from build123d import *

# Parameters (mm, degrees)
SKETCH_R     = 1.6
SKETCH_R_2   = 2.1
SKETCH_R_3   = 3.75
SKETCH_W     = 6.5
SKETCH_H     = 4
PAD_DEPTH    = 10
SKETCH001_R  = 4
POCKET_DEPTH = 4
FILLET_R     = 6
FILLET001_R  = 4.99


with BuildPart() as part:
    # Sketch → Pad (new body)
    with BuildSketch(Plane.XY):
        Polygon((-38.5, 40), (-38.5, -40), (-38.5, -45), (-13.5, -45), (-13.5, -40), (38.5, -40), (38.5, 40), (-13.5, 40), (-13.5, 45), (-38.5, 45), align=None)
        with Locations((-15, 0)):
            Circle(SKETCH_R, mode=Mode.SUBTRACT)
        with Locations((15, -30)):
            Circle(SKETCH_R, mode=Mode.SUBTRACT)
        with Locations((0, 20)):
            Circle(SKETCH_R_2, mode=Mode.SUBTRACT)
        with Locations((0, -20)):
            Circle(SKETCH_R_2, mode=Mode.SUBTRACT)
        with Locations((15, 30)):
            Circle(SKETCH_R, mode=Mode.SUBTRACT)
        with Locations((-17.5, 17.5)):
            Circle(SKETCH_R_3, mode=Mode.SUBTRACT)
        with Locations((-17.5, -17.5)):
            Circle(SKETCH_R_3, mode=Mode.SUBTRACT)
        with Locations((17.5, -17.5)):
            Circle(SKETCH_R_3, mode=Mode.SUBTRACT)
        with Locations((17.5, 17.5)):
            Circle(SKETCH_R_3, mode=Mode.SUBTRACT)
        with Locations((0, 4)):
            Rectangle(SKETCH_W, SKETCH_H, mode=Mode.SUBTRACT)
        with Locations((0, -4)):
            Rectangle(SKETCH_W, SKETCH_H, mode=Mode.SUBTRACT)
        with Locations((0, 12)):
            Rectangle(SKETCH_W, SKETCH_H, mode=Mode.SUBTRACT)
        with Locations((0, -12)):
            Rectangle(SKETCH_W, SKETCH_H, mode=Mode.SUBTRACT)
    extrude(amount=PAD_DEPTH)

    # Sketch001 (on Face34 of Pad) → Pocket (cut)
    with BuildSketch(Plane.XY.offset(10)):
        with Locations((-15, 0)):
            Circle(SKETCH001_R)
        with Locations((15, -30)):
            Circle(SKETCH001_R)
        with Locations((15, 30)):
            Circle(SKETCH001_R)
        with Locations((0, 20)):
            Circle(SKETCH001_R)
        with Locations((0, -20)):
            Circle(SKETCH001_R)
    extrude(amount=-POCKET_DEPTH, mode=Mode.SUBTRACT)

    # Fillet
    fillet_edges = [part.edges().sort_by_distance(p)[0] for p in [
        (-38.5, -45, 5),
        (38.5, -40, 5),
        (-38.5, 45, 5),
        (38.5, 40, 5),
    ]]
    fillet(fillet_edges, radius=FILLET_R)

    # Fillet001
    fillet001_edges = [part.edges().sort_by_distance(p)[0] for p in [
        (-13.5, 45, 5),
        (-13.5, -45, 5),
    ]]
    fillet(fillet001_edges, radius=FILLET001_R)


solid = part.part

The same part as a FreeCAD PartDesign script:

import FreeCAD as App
import Part
import Sketcher
Q = App.Units.Quantity


def edges_at(feature, points):
    """Names of the edges that pass closest to the given points."""
    edges = feature.Shape.Edges
    near = lambda p: min(range(len(edges)), key=lambda i: edges[i].distToShape(Part.Vertex(*p))[0])
    return sorted({f"Edge{near(p) + 1}" for p in points})

doc = App.newDocument("Part")
body = doc.addObject("PartDesign::Body", "Body")

# Sketch on XY plane
sketch1 = body.newObject("Sketcher::SketchObject", "Sketch")
sketch1.AttachmentSupport = (doc.getObject("XY_Plane"), [""])
sketch1.MapMode = "FlatFace"
sketch1.addGeometry([
    Part.LineSegment(App.Vector(-38.5, -45, 0), App.Vector(-13.5, -45, 0)),  # 0
    Part.LineSegment(App.Vector(-13.5, -45, 0), App.Vector(-13.5, -40, 0)),  # 1
    Part.LineSegment(App.Vector(-13.5, -40, 0), App.Vector(38.5, -40, 0)),  # 2
    Part.LineSegment(App.Vector(38.5, -40, 0), App.Vector(38.5, 40, 0)),  # 3
    Part.LineSegment(App.Vector(38.5, 40, 0), App.Vector(-13.5, 40, 0)),  # 4
    Part.LineSegment(App.Vector(-13.5, 40, 0), App.Vector(-13.5, 45, 0)),  # 5
    Part.LineSegment(App.Vector(-13.5, 45, 0), App.Vector(-38.5, 45, 0)),  # 6
    Part.LineSegment(App.Vector(-38.5, 45, 0), App.Vector(-38.5, -45, 0)),  # 7
    Part.Circle(App.Vector(-17.5, -17.5, 0), App.Vector(0, 0, 1), 3.8),  # 8
    Part.Circle(App.Vector(-15, 0, 0), App.Vector(0, 0, 1), 1.6),  # 9
    Part.Circle(App.Vector(0, -20, 0), App.Vector(0, 0, 1), 2.1),  # 10
    Part.Circle(App.Vector(15, -30, 0), App.Vector(0, 0, 1), 1.6),  # 11
    Part.Circle(App.Vector(17.5, -17.5, 0), App.Vector(0, 0, 1), 3.8),  # 12
    Part.LineSegment(App.Vector(3.2, -14, 0), App.Vector(-3.2, -14, 0)),  # 13
    Part.LineSegment(App.Vector(-3.2, -14, 0), App.Vector(-3.2, -10, 0)),  # 14
    Part.LineSegment(App.Vector(-3.2, -10, 0), App.Vector(3.2, -10, 0)),  # 15
    Part.LineSegment(App.Vector(3.2, -10, 0), App.Vector(3.2, -14, 0)),  # 16
    Part.LineSegment(App.Vector(3.2, -6, 0), App.Vector(-3.2, -6, 0)),  # 17
    Part.LineSegment(App.Vector(-3.2, -6, 0), App.Vector(-3.2, -2, 0)),  # 18
    Part.LineSegment(App.Vector(-3.2, -2, 0), App.Vector(3.2, -2, 0)),  # 19
    Part.LineSegment(App.Vector(3.2, -2, 0), App.Vector(3.2, -6, 0)),  # 20
    Part.Circle(App.Vector(-17.5, 17.5, 0), App.Vector(0, 0, 1), 3.8),  # 21
    Part.LineSegment(App.Vector(3.2, 2, 0), App.Vector(-3.2, 2, 0)),  # 22
    Part.LineSegment(App.Vector(-3.2, 2, 0), App.Vector(-3.2, 6, 0)),  # 23
    Part.LineSegment(App.Vector(-3.2, 6, 0), App.Vector(3.2, 6, 0)),  # 24
    Part.LineSegment(App.Vector(3.2, 6, 0), App.Vector(3.2, 2, 0)),  # 25
    Part.LineSegment(App.Vector(3.2, 10, 0), App.Vector(-3.2, 10, 0)),  # 26
    Part.LineSegment(App.Vector(-3.2, 10, 0), App.Vector(-3.2, 14, 0)),  # 27
    Part.LineSegment(App.Vector(-3.2, 14, 0), App.Vector(3.2, 14, 0)),  # 28
    Part.LineSegment(App.Vector(3.2, 14, 0), App.Vector(3.2, 10, 0)),  # 29
    Part.Circle(App.Vector(0, 20, 0), App.Vector(0, 0, 1), 2.1),  # 30
    Part.Circle(App.Vector(17.5, 17.5, 0), App.Vector(0, 0, 1), 3.8),  # 31
    Part.Circle(App.Vector(15, 30, 0), App.Vector(0, 0, 1), 1.6),  # 32
], False)
sketch1.addConstraint([
    Sketcher.Constraint("Coincident", 0, 2, 1, 1),
    Sketcher.Constraint("Coincident", 1, 2, 2, 1),
    Sketcher.Constraint("Coincident", 2, 2, 3, 1),
    Sketcher.Constraint("Coincident", 3, 2, 4, 1),
    Sketcher.Constraint("Coincident", 4, 2, 5, 1),
    Sketcher.Constraint("Coincident", 5, 2, 6, 1),
    Sketcher.Constraint("Coincident", 6, 2, 7, 1),
    Sketcher.Constraint("Coincident", 7, 2, 0, 1),
    Sketcher.Constraint("Coincident", 13, 2, 14, 1),
    Sketcher.Constraint("Coincident", 14, 2, 15, 1),
    Sketcher.Constraint("Coincident", 15, 2, 16, 1),
    Sketcher.Constraint("Coincident", 16, 2, 13, 1),
    Sketcher.Constraint("Coincident", 17, 2, 18, 1),
    Sketcher.Constraint("Coincident", 18, 2, 19, 1),
    Sketcher.Constraint("Coincident", 19, 2, 20, 1),
    Sketcher.Constraint("Coincident", 20, 2, 17, 1),
    Sketcher.Constraint("Coincident", 22, 2, 23, 1),
    Sketcher.Constraint("Coincident", 23, 2, 24, 1),
    Sketcher.Constraint("Coincident", 24, 2, 25, 1),
    Sketcher.Constraint("Coincident", 25, 2, 22, 1),
    Sketcher.Constraint("Coincident", 26, 2, 27, 1),
    Sketcher.Constraint("Coincident", 27, 2, 28, 1),
    Sketcher.Constraint("Coincident", 28, 2, 29, 1),
    Sketcher.Constraint("Coincident", 29, 2, 26, 1),
    Sketcher.Constraint("Horizontal", 0),
    Sketcher.Constraint("Vertical", 1),
    Sketcher.Constraint("Horizontal", 2),
    Sketcher.Constraint("Vertical", 3),
    Sketcher.Constraint("Horizontal", 4),
    Sketcher.Constraint("Vertical", 5),
    Sketcher.Constraint("Horizontal", 6),
    Sketcher.Constraint("Vertical", 7),
    Sketcher.Constraint("Horizontal", 13),
    Sketcher.Constraint("Vertical", 14),
    Sketcher.Constraint("Horizontal", 15),
    Sketcher.Constraint("Vertical", 16),
    Sketcher.Constraint("Horizontal", 17),
    Sketcher.Constraint("Vertical", 18),
    Sketcher.Constraint("Horizontal", 19),
    Sketcher.Constraint("Vertical", 20),
    Sketcher.Constraint("Horizontal", 22),
    Sketcher.Constraint("Vertical", 23),
    Sketcher.Constraint("Horizontal", 24),
    Sketcher.Constraint("Vertical", 25),
    Sketcher.Constraint("Horizontal", 26),
    Sketcher.Constraint("Vertical", 27),
    Sketcher.Constraint("Horizontal", 28),
    Sketcher.Constraint("Vertical", 29),
    Sketcher.Constraint("Equal", 9, 11),
    Sketcher.Constraint("Equal", 8, 12),
    Sketcher.Constraint("Equal", 12, 21),
    Sketcher.Constraint("Equal", 10, 30),
    Sketcher.Constraint("Equal", 21, 31),
    Sketcher.Constraint("Equal", 11, 32),
    Sketcher.Constraint("Symmetric", 12, 3, 21, 3, -1, 1),
    Sketcher.Constraint("Symmetric", 10, 3, 30, 3, -1, 1),
    Sketcher.Constraint("Symmetric", 8, 3, 31, 3, -1, 1),
    Sketcher.Constraint("Symmetric", 19, 2, 22, 2, -1, 1),
    Sketcher.Constraint("Symmetric", 17, 2, 24, 2, -1, 1),
    Sketcher.Constraint("Symmetric", 15, 2, 26, 2, -1, 1),
    Sketcher.Constraint("Symmetric", 13, 2, 28, 2, -1, 1),
    Sketcher.Constraint("Symmetric", 8, 3, 12, 3, -2),
    Sketcher.Constraint("Symmetric", 11, 3, 32, 3, -1),
    Sketcher.Constraint("Symmetric", 1, 2, 4, 2, -1),
    Sketcher.Constraint("PointOnObject", 9, 3, -1),
    Sketcher.Constraint("PointOnObject", 10, 3, -2),
    Sketcher.Constraint("Vertical", 14, 2, 17, 2),
    Sketcher.Constraint("Vertical", 16, 2, 19, 2),
    Sketcher.Constraint("Vertical", 18, 2, 22, 2),
    Sketcher.Constraint("Equal", 1, 5),
    Sketcher.Constraint("Equal", 16, 18),
    Sketcher.Constraint("Diameter", 8, Q("7.5 mm")),
    Sketcher.Constraint("Diameter", 9, Q("3.2 mm")),
    Sketcher.Constraint("Diameter", 10, Q("4.2 mm")),
    Sketcher.Constraint("DistanceX", 0, 1, 0, 2, Q("25 mm")),
    Sketcher.Constraint("DistanceX", 2, 1, 2, 2, Q("52 mm")),
    Sketcher.Constraint("DistanceY", 1, 1, 1, 2, Q("5 mm")),
    Sketcher.Constraint("DistanceY", 3, 1, 3, 2, Q("80 mm")),
    Sketcher.Constraint("DistanceY", 14, 1, 14, 2, Q("4 mm")),
    Sketcher.Constraint("DistanceX", 13, 2, 13, 1, Q("6.5 mm")),
    Sketcher.Constraint("DistanceX", 9, 3, -1, 1, Q("15 mm")),
    Sketcher.Constraint("DistanceY", 10, 3, -1, 1, Q("20 mm")),
    Sketcher.Constraint("DistanceX", -1, 1, 11, 3, Q("15 mm")),
    Sketcher.Constraint("DistanceY", 11, 3, -1, 1, Q("30 mm")),
    Sketcher.Constraint("DistanceY", 13, 2, -1, 1, Q("14 mm")),
    Sketcher.Constraint("DistanceY", 17, 2, -1, 1, Q("6 mm")),
    Sketcher.Constraint("DistanceX", 8, 3, 12, 3, Q("35 mm")),
    Sketcher.Constraint("DistanceY", 8, 3, 21, 3, Q("35 mm")),
    Sketcher.Constraint("DistanceX", 8, 3, 0, 2, Q("4 mm")),
])
pad1 = body.newObject("PartDesign::Pad", "Pad")
pad1.Profile = sketch1
pad1.Length = 10

# Sketch on XY plane
sketch2 = body.newObject("Sketcher::SketchObject", "Sketch001")
sketch2.AttachmentSupport = (doc.getObject("XY_Plane"), [""])
sketch2.MapMode = "FlatFace"
sketch2.AttachmentOffset = App.Placement(App.Vector(0, 0, 10), App.Rotation())
sketch2.addGeometry([
    Part.Circle(App.Vector(-15, 0, 0), App.Vector(0, 0, 1), 4),  # 0
    Part.Circle(App.Vector(15, -30, 0), App.Vector(0, 0, 1), 4),  # 1
    Part.Circle(App.Vector(15, 30, 0), App.Vector(0, 0, 1), 4),  # 2
    Part.Circle(App.Vector(0, 20, 0), App.Vector(0, 0, 1), 4),  # 3
    Part.Circle(App.Vector(0, -20, 0), App.Vector(0, 0, 1), 4),  # 4
], False)
sketch2.addConstraint([
    Sketcher.Constraint("Equal", 0, 1),
    Sketcher.Constraint("Equal", 1, 2),
    Sketcher.Constraint("Equal", 2, 3),
    Sketcher.Constraint("Equal", 3, 4),
    Sketcher.Constraint("Symmetric", 3, 3, 4, 3, -1, 1),
    Sketcher.Constraint("Symmetric", 1, 3, 2, 3, -1),
    Sketcher.Constraint("PointOnObject", 0, 3, -1),
    Sketcher.Constraint("PointOnObject", 3, 3, -2),
    Sketcher.Constraint("Diameter", 0, Q("8 mm")),
    Sketcher.Constraint("DistanceX", 0, 3, -1, 1, Q("15 mm")),
    Sketcher.Constraint("DistanceX", -1, 1, 1, 3, Q("15 mm")),
    Sketcher.Constraint("DistanceY", 1, 3, -1, 1, Q("30 mm")),
    Sketcher.Constraint("DistanceY", -1, 1, 3, 3, Q("20 mm")),
])
pocket1 = body.newObject("PartDesign::Pocket", "Pocket")
pocket1.Profile = sketch2
pocket1.Length = 4
doc.recompute()

fillet = body.newObject("PartDesign::Fillet", "Fillet")
fillet.Base = (pocket1, edges_at(pocket1, [
    (-38.5, -45, 5),
    (38.5, -40, 5),
    (-38.5, 45, 5),
    (38.5, 40, 5),
]))
fillet.Radius = 6
doc.recompute()

fillet2 = body.newObject("PartDesign::Fillet", "Fillet001")
fillet2.Base = (fillet, edges_at(fillet, [(-13.5, 45, 5), (-13.5, -45, 5)]))
fillet2.Radius = 4.99

doc.recompute()
